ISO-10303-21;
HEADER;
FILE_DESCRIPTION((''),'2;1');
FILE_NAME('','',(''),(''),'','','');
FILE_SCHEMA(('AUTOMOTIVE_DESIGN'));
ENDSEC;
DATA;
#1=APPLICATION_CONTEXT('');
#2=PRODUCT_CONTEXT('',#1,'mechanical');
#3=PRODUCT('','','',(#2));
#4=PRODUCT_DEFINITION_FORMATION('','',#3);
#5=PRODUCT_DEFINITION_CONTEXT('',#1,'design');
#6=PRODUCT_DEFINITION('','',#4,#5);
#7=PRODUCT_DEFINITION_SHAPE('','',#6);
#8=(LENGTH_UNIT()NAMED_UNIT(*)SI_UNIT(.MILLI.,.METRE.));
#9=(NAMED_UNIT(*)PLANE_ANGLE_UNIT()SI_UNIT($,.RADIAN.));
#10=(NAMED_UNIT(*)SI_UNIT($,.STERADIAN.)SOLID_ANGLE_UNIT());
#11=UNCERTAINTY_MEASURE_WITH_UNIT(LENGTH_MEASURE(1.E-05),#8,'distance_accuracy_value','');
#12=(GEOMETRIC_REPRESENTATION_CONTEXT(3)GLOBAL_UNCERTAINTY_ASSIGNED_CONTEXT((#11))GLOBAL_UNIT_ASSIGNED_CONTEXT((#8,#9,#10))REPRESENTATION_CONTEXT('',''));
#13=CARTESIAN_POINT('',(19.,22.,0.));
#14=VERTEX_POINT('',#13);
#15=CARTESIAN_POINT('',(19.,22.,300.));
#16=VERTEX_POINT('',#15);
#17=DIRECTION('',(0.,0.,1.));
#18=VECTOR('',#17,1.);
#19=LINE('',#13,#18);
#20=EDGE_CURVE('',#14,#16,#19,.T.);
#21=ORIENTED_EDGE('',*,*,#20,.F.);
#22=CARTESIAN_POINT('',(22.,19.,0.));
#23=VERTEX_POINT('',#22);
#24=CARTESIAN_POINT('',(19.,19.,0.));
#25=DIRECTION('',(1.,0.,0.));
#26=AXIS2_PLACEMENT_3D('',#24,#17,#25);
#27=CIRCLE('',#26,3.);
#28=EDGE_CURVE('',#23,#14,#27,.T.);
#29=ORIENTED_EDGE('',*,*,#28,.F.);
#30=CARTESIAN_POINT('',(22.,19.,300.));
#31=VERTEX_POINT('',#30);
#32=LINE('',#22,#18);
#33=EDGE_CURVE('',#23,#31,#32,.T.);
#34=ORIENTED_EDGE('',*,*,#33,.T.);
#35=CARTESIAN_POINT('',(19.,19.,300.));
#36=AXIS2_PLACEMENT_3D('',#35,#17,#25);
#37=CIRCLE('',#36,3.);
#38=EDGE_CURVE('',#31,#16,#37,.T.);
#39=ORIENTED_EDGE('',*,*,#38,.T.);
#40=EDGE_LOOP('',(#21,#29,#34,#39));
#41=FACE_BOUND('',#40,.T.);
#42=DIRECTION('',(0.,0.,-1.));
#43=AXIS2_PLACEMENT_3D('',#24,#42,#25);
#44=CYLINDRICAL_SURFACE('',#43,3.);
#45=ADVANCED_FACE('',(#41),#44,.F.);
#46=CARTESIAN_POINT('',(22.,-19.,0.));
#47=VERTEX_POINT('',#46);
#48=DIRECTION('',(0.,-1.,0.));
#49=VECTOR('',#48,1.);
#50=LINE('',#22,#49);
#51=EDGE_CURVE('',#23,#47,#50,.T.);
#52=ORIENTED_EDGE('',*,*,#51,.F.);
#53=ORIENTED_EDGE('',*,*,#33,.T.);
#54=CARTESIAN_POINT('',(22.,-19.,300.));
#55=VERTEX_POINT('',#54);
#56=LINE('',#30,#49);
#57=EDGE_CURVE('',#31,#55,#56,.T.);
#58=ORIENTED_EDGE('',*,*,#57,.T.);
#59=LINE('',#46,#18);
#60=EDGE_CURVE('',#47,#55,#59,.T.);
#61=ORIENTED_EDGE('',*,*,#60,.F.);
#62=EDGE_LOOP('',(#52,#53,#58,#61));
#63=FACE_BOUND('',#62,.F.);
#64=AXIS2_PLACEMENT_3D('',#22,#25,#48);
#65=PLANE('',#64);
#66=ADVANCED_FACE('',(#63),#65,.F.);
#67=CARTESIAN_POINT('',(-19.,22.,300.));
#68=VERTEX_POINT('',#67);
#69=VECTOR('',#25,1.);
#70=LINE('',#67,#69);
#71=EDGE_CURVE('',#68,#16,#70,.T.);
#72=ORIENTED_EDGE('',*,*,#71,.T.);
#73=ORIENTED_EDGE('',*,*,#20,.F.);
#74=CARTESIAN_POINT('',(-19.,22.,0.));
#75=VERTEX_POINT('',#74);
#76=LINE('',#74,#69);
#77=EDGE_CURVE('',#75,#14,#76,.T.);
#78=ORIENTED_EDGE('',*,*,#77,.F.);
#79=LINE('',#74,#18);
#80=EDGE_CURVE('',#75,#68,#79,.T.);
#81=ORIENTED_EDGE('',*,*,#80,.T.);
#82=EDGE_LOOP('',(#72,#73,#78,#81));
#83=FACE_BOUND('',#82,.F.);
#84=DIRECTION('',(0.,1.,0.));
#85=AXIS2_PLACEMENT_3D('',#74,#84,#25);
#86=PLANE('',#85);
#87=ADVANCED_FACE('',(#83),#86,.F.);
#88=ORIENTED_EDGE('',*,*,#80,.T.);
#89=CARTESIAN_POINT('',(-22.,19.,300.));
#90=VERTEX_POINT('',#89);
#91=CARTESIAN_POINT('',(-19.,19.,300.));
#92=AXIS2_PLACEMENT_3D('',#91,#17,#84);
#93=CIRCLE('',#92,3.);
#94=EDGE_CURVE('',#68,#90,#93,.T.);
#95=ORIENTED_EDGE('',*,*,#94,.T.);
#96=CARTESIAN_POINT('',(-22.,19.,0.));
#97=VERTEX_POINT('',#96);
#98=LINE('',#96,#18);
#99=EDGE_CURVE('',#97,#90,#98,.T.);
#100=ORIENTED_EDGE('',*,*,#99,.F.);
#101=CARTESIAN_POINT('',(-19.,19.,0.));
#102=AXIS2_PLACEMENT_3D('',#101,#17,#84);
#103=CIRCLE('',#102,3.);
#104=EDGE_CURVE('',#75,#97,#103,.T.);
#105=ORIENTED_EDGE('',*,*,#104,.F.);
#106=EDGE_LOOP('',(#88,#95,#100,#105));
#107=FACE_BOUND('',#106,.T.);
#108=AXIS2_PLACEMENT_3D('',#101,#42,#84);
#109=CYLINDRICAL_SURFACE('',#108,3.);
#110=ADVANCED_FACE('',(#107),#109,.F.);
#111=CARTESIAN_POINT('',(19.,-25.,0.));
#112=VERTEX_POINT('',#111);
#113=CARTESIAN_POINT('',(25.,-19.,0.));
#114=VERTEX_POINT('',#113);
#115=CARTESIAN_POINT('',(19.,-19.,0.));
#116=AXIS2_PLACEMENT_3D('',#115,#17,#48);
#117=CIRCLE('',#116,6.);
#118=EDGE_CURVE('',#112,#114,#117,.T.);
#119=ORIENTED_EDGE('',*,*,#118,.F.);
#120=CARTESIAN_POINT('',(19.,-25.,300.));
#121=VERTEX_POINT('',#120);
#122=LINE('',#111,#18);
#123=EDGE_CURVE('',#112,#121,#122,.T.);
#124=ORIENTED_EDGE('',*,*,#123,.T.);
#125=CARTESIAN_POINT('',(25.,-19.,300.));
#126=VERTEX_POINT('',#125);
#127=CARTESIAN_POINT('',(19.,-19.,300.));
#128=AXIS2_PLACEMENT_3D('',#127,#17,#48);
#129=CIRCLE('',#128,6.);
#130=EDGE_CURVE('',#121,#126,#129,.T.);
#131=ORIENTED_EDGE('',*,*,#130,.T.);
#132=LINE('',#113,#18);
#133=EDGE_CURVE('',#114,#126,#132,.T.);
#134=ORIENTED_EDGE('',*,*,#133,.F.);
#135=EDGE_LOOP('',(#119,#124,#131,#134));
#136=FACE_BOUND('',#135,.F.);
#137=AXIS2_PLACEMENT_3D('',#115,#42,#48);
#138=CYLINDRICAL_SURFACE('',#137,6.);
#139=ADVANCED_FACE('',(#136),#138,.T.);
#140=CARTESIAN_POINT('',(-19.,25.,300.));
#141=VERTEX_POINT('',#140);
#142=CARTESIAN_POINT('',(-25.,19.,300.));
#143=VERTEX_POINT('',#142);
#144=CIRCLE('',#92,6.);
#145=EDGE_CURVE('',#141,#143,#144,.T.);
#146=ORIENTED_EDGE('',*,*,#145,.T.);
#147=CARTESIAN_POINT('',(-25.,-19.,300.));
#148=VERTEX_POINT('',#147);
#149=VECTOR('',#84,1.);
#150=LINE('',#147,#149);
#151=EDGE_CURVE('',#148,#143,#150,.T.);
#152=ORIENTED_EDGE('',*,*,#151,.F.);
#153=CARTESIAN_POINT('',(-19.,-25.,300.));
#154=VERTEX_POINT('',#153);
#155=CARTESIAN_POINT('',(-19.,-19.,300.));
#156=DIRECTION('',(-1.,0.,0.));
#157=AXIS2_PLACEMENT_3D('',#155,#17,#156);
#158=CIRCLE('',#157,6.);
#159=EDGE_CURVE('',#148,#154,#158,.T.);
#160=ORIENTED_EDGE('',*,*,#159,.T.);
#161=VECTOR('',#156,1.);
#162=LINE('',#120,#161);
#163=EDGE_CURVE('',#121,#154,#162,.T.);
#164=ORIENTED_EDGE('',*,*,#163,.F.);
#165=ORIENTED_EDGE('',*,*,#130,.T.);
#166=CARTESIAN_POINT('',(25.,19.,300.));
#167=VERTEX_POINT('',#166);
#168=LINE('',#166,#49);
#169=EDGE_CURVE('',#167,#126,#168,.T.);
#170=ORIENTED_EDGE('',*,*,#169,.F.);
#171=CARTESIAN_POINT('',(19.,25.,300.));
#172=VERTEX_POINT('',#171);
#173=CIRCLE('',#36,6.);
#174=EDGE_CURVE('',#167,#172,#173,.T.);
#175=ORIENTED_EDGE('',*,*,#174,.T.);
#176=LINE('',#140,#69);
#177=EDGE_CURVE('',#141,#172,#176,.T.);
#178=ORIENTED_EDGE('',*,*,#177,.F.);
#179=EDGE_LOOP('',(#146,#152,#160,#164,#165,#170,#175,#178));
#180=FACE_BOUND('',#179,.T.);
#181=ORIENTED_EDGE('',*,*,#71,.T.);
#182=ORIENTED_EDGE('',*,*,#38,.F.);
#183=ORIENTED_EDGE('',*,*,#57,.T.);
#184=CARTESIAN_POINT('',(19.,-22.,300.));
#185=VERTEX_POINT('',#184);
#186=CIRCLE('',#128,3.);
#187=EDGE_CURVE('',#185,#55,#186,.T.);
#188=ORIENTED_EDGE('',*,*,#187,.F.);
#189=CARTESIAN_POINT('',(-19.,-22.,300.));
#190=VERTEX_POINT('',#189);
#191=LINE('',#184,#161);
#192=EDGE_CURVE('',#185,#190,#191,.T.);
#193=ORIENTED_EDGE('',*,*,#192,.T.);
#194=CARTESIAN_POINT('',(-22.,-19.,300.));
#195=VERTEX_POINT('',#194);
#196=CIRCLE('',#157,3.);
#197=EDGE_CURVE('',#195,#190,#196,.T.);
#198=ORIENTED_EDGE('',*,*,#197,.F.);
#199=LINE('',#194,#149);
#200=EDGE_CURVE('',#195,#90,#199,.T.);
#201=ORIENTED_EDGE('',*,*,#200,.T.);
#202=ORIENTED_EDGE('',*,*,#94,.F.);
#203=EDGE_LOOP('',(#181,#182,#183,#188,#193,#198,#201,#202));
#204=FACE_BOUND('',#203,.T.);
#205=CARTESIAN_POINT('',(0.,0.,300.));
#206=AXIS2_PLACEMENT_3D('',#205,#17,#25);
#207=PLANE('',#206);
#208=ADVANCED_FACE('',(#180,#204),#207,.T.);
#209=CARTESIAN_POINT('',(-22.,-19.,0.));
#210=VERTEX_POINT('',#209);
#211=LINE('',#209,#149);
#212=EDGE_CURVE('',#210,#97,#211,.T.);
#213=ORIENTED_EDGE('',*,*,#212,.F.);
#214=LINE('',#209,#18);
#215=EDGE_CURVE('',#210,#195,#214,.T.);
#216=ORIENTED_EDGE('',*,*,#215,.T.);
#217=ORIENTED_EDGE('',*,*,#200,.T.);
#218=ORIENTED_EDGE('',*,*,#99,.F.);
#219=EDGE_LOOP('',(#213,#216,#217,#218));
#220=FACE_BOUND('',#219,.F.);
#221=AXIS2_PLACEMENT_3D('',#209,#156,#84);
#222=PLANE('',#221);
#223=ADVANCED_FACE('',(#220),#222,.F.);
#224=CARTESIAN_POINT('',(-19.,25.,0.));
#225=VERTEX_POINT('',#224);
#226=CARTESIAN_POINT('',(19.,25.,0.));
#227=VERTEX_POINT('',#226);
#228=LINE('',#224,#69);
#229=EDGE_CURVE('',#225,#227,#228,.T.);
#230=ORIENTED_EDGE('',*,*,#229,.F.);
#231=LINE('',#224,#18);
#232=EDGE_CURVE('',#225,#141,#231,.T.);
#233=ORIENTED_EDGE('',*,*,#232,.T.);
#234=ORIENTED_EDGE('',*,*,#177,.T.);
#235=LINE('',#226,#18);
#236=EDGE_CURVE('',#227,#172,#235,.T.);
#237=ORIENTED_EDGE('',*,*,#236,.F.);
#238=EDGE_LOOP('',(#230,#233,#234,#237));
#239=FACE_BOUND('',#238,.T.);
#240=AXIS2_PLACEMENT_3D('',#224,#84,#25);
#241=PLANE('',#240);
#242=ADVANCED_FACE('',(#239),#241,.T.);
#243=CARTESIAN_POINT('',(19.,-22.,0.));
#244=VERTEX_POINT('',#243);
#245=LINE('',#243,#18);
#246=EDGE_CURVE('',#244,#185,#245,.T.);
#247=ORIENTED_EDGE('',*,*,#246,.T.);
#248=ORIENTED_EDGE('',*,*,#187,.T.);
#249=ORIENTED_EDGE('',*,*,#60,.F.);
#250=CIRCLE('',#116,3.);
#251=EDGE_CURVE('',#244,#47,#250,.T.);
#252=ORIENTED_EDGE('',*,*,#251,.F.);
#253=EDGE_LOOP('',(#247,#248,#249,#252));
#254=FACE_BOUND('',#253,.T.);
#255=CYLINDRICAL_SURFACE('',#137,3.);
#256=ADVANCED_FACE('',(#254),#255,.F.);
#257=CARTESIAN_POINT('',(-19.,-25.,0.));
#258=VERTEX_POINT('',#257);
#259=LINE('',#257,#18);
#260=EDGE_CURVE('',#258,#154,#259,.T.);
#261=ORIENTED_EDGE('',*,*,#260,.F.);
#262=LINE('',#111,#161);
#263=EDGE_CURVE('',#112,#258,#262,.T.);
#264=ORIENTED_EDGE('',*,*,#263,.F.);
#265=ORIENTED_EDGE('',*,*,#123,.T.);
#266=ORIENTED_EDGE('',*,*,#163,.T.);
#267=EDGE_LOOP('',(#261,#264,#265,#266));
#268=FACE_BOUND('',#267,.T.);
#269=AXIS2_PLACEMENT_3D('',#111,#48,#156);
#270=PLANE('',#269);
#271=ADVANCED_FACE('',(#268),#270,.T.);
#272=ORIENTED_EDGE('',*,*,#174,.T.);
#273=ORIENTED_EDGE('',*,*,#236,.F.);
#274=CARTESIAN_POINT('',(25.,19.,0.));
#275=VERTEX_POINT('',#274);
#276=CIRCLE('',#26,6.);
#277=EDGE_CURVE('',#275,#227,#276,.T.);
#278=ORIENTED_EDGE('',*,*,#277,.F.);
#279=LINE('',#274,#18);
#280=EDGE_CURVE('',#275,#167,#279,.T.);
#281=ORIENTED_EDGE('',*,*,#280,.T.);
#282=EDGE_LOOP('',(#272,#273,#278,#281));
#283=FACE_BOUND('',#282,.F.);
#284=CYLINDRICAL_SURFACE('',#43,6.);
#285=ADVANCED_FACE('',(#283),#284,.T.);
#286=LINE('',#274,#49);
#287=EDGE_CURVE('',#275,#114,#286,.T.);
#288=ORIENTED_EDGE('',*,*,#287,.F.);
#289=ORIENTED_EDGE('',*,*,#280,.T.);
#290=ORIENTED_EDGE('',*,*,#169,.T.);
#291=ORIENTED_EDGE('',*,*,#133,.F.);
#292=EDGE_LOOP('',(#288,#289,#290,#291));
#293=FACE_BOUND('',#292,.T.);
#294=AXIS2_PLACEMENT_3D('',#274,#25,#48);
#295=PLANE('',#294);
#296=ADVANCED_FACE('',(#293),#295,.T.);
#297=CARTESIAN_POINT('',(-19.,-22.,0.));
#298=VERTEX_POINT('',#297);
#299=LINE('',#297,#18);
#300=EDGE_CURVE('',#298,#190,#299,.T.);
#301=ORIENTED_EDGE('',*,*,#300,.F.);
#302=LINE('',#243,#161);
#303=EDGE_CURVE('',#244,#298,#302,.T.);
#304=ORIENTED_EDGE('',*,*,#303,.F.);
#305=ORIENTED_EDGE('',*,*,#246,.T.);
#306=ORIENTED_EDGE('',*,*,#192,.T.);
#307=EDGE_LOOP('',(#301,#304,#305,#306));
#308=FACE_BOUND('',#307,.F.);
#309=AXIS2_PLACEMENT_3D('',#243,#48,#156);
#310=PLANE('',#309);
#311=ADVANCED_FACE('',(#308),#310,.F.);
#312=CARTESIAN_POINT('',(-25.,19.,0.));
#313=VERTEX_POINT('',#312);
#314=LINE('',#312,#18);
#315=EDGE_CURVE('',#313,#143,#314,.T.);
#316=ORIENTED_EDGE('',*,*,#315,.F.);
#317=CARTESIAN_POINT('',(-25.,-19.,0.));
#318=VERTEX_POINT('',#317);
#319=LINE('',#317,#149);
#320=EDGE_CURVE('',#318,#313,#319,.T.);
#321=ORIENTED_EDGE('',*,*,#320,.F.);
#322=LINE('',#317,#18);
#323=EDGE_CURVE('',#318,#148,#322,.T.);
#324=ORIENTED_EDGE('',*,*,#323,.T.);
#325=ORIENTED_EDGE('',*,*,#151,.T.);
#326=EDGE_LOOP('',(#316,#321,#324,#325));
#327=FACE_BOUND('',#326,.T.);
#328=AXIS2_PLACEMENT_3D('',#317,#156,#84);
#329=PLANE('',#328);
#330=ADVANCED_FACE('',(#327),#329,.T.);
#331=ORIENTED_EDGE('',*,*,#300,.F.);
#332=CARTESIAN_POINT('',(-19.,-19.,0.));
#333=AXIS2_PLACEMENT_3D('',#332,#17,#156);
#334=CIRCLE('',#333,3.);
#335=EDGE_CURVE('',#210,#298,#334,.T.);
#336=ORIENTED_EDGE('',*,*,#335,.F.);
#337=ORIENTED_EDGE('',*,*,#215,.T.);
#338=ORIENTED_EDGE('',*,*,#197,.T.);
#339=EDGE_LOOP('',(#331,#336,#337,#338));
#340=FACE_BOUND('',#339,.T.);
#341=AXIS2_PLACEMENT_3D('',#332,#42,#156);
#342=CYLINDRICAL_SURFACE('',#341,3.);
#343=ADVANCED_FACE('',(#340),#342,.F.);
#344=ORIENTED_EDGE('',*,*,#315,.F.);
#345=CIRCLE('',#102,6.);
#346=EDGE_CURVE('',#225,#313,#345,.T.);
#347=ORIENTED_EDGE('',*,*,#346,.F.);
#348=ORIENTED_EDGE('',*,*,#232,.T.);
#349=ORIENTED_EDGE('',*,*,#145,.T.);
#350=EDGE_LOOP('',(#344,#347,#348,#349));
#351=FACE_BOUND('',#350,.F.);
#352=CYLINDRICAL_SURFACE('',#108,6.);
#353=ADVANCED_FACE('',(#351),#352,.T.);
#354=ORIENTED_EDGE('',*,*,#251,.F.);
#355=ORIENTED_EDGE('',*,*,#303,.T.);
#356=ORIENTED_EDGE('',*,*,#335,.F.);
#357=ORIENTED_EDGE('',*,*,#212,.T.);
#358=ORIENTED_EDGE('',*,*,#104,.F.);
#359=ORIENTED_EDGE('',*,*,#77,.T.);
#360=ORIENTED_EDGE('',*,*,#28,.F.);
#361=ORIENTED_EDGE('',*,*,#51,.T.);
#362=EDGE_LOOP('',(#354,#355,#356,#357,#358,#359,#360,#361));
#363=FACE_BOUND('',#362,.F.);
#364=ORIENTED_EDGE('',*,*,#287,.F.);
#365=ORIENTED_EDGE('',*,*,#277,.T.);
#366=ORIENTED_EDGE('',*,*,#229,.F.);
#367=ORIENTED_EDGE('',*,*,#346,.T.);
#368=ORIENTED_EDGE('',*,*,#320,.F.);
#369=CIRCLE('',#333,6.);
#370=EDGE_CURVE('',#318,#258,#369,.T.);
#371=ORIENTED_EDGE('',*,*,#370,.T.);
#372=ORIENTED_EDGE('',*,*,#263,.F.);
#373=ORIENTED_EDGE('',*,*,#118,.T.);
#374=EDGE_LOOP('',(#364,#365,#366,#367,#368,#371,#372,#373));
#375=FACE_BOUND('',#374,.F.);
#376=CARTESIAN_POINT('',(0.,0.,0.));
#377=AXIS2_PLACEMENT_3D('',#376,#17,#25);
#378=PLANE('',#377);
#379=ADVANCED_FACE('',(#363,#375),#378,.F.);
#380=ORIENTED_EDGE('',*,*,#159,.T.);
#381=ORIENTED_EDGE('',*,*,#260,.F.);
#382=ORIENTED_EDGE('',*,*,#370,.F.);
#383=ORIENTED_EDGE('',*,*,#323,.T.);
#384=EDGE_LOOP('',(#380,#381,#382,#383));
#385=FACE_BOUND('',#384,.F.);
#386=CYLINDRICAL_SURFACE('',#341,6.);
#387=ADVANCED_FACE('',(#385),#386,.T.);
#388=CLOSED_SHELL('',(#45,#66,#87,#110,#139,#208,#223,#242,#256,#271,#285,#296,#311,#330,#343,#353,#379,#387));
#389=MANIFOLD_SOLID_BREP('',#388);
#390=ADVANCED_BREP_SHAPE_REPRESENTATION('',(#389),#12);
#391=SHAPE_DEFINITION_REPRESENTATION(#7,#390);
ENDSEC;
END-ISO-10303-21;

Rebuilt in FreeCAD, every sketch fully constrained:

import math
import FreeCAD as App
import Part
import Sketcher

doc = App.newDocument("Part")
params = doc.addObject("Spreadsheet::Sheet", "Params")
for row, (alias, value) in enumerate([
    ("sketch1_radius", "6 mm"),
    ("sketch1_radius2", "3 mm"),
    ("pad1_length", "300 mm"),
], start=1):
    params.set(f"A{row}", alias)
    params.set(f"B{row}", "=" + value)
    params.setAlias(f"B{row}", alias)

body = doc.addObject("PartDesign::Body", "Body")

sketch1 = doc.addObject("Sketcher::SketchObject", "Sketch")
body.addObject(sketch1)
sketch1.AttachmentSupport = (doc.XY_Plane, [""])
sketch1.MapMode = "FlatFace"
sketch1.addGeometry([
    Part.LineSegment(App.Vector(-25, 19, 0), App.Vector(-25, -19, 0)),
    Part.ArcOfCircle(Part.Circle(App.Vector(-19, -19, 0), App.Vector(0, 0, 1), 6), math.radians(180), math.radians(270)),
    Part.LineSegment(App.Vector(-19, -25, 0), App.Vector(19, -25, 0)),
    Part.ArcOfCircle(Part.Circle(App.Vector(19, -19, 0), App.Vector(0, 0, 1), 6), math.radians(-90), math.radians(0)),
    Part.LineSegment(App.Vector(25, -19, 0), App.Vector(25, 19, 0)),
    Part.ArcOfCircle(Part.Circle(App.Vector(19, 19, 0), App.Vector(0, 0, 1), 6), math.radians(0), math.radians(90)),
    Part.LineSegment(App.Vector(19, 25, 0), App.Vector(-19, 25, 0)),
    Part.ArcOfCircle(Part.Circle(App.Vector(-19, 19, 0), App.Vector(0, 0, 1), 6), math.radians(90), math.radians(180)),
    Part.ArcOfCircle(Part.Circle(App.Vector(-19, 19, 0), App.Vector(0, 0, 1), 3), math.radians(90), math.radians(180)),
    Part.LineSegment(App.Vector(-19, 22, 0), App.Vector(19, 22, 0)),
    Part.ArcOfCircle(Part.Circle(App.Vector(19, 19, 0), App.Vector(0, 0, 1), 3), math.radians(0), math.radians(90)),
    Part.LineSegment(App.Vector(22, 19, 0), App.Vector(22, -19, 0)),
    Part.ArcOfCircle(Part.Circle(App.Vector(19, -19, 0), App.Vector(0, 0, 1), 3), math.radians(-90), math.radians(0)),
    Part.LineSegment(App.Vector(19, -22, 0), App.Vector(-19, -22, 0)),
    Part.ArcOfCircle(Part.Circle(App.Vector(-19, -19, 0), App.Vector(0, 0, 1), 3), math.radians(180), math.radians(270)),
    Part.LineSegment(App.Vector(-22, -19, 0), App.Vector(-22, 19, 0)),
], False)
sketch1.addConstraint([
    Sketcher.Constraint("Tangent", 0, 2, 1, 1),
    Sketcher.Constraint("Tangent", 1, 2, 2, 1),
    Sketcher.Constraint("Tangent", 2, 2, 3, 1),
    Sketcher.Constraint("Tangent", 3, 2, 4, 1),
    Sketcher.Constraint("Tangent", 4, 2, 5, 1),
    Sketcher.Constraint("Tangent", 5, 2, 6, 1),
    Sketcher.Constraint("Tangent", 6, 2, 7, 1),
    Sketcher.Constraint("Tangent", 7, 2, 0, 1),
    Sketcher.Constraint("Tangent", 8, 1, 9, 1),
    Sketcher.Constraint("Tangent", 9, 2, 10, 2),
    Sketcher.Constraint("Tangent", 10, 1, 11, 1),
    Sketcher.Constraint("Tangent", 11, 2, 12, 2),
    Sketcher.Constraint("Tangent", 12, 1, 13, 1),
    Sketcher.Constraint("Tangent", 13, 2, 14, 2),
    Sketcher.Constraint("Tangent", 14, 1, 15, 1),
    Sketcher.Constraint("Tangent", 15, 2, 8, 2),
    Sketcher.Constraint("Vertical", 0),
    Sketcher.Constraint("Horizontal", 2),
    Sketcher.Constraint("Vertical", 4),
    Sketcher.Constraint("Horizontal", 6),
    Sketcher.Constraint("Horizontal", 9),
    Sketcher.Constraint("Vertical", 11),
    Sketcher.Constraint("Horizontal", 13),
    Sketcher.Constraint("Vertical", 15),
    Sketcher.Constraint("Coincident", 8, 3, 7, 3),
    Sketcher.Constraint("Coincident", 10, 3, 5, 3),
    Sketcher.Constraint("Coincident", 12, 3, 3, 3),
    Sketcher.Constraint("Equal", 1, 3),
    Sketcher.Constraint("Equal", 3, 5),
    Sketcher.Constraint("Equal", 5, 7),
    Sketcher.Constraint("Equal", 12, 14),
    Sketcher.Constraint("Symmetric", 1, 3, 5, 3, -1, 1),
    Sketcher.Constraint("Equal", 13, 0),
    Sketcher.Constraint("Radius", 1, 6.0),
    Sketcher.Constraint("Radius", 8, 3.0),
    Sketcher.Constraint("DistanceX", 0, 2, -1, 1, 25.0),
])
sketch1.setExpression("Constraints[33]", "Params.sketch1_radius")
sketch1.setExpression("Constraints[34]", "Params.sketch1_radius2")
pad1 = doc.addObject("PartDesign::Pad", "Pad")
body.addObject(pad1)
pad1.Profile = sketch1
pad1.setExpression("Length", "Params.pad1_length")

doc.recompute()
